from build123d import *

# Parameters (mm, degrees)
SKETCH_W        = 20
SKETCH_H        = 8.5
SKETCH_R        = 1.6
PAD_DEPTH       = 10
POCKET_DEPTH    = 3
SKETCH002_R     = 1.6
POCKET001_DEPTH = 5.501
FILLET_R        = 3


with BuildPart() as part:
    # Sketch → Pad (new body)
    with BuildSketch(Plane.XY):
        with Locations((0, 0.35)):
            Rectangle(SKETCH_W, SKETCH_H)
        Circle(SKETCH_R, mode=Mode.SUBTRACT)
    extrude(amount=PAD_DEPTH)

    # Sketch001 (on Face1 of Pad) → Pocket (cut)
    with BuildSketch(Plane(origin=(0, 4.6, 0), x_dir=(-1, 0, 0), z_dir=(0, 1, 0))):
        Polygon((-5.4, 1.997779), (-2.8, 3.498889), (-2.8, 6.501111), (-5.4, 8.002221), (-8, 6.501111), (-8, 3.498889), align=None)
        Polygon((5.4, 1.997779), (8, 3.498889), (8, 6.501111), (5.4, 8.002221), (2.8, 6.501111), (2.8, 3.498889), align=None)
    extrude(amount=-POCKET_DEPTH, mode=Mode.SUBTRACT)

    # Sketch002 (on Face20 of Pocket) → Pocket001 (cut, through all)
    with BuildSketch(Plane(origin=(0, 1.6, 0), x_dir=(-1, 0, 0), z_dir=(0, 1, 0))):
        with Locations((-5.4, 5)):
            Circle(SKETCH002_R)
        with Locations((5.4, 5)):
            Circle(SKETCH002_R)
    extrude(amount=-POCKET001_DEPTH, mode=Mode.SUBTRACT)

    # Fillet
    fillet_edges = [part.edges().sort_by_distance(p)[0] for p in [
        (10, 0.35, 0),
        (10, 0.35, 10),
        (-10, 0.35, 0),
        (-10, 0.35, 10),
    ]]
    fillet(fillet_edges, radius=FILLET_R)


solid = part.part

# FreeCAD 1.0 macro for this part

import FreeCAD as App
import Part
import Sketcher

V = App.Vector
Q = App.Units.Quantity


def edges_at(feature, points):
    """Names of the edges that pass closest to the given points."""
    edges = feature.Shape.Edges
    near = lambda p: min(range(len(edges)), key=lambda i: edges[i].distToShape(Part.Vertex(*p))[0])
    return sorted({f"Edge{near(p) + 1}" for p in points})


def add_polygon(sketch, points):
    """Adds a closed chain of lines whose ends are joined by coincident constraints."""
    first, n = sketch.GeometryCount, len(points)
    for a, b in zip(points, points[1:] + points[:1]):
        sketch.addGeometry(Part.LineSegment(App.Vector(*a, 0), App.Vector(*b, 0)), False)
    for i in range(n):
        sketch.addConstraint(Sketcher.Constraint("Coincident", first + i, 2, first + (i + 1) % n, 1))

doc = App.newDocument("Part")
body = doc.addObject("PartDesign::Body", "Body")

# Sketch on XY plane
sketch1 = body.newObject("Sketcher::SketchObject", "Sketch")
sketch1.AttachmentSupport = (doc.getObject("XY_Plane"), [""])
sketch1.MapMode = "FlatFace"
add_polygon(sketch1, [(-10, 4.6), (-10, -3.9), (10, -3.9), (10, 4.6)])  # lines 0-3
sketch1.addGeometry(Part.Circle(V(0, 0, 0), V(0, 0, 1), 1.6), False)  # 4
sketch1.addConstraint([
    Sketcher.Constraint("Vertical", 0),
    Sketcher.Constraint("Horizontal", 1),
    Sketcher.Constraint("Vertical", 2),
    Sketcher.Constraint("Horizontal", 3),
    Sketcher.Constraint("Coincident", 4, 3, -1, 1),
    Sketcher.Constraint("Diameter", 4, Q("3.2 mm")),
    Sketcher.Constraint("DistanceX", 1, 1, 1, 2, Q("20 mm")),
    Sketcher.Constraint("DistanceY", 0, 2, 0, 1, Q("8.5 mm")),
    Sketcher.Constraint("DistanceX", 0, 2, -1, 1, Q("10 mm")),
    Sketcher.Constraint("DistanceY", 0, 2, -1, 1, Q("3.9 mm")),
])
pad1 = body.newObject("PartDesign::Pad", "Pad")
pad1.Profile = sketch1
pad1.Length = 10

# Sketch on XZ plane
sketch2 = body.newObject("Sketcher::SketchObject", "Sketch001")
sketch2.AttachmentSupport = (doc.getObject("XZ_Plane"), [""])
sketch2.MapMode = "FlatFace"
sketch2.AttachmentOffset = App.Placement(V(0, 0, -4.6), App.Rotation())
add_polygon(sketch2, [(5.4, 2), (2.8, 3.5), (2.8, 6.5), (5.4, 8), (8, 6.5), (8, 3.5)])  # lines 0-5
add_polygon(sketch2, [(-5.4, 2), (-8, 3.5), (-8, 6.5), (-5.4, 8), (-2.8, 6.5), (-2.8, 3.5)])  # lines 6-11
sketch2.addConstraint([
    Sketcher.Constraint("Vertical", 1),
    Sketcher.Constraint("Vertical", 4),
    Sketcher.Constraint("Vertical", 7),
    Sketcher.Constraint("Vertical", 10),
    Sketcher.Constraint("Symmetric", 4, 2, 6, 2, -2),
    Sketcher.Constraint("Symmetric", 2, 2, 8, 2, -2),
    Sketcher.Constraint("Symmetric", 1, 2, 9, 2, -2),
    Sketcher.Constraint("Symmetric", 5, 2, 11, 2, -2),
    Sketcher.Constraint("Parallel", 0, 3),
    Sketcher.Constraint("Parallel", 2, 5),
    Sketcher.Constraint("Parallel", 3, 6),
    Sketcher.Constraint("Parallel", 5, 8),
    Sketcher.Constraint("Parallel", 8, 11),
    Sketcher.Constraint("Horizontal", 1, 2, 3, 2),
    Sketcher.Constraint("Horizontal", 0, 2, 4, 2),
    Sketcher.Constraint("Angle", 0, Q("150.000012 deg")),
    Sketcher.Constraint("DistanceX", -1, 1, 3, 2, Q("8 mm")),
    Sketcher.Constraint("DistanceX", -1, 1, 0, 2, Q("2.8 mm")),
    Sketcher.Constraint("DistanceY", 1, 1, 1, 2, Q("3.002222 mm")),
    Sketcher.Constraint("DistanceY", -1, 1, 0, 2, Q("3.498889 mm")),
])
pocket1 = body.newObject("PartDesign::Pocket", "Pocket")
pocket1.Profile = sketch2
pocket1.Length = 3
pocket1.Reversed = True

# Sketch on XZ plane
sketch3 = body.newObject("Sketcher::SketchObject", "Sketch002")
sketch3.AttachmentSupport = (doc.getObject("XZ_Plane"), [""])
sketch3.MapMode = "FlatFace"
sketch3.AttachmentOffset = App.Placement(V(0, 0, -1.6), App.Rotation())
sketch3.addGeometry([
    Part.Circle(V(5.4, 5, 0), V(0, 0, 1), 1.6),
    Part.Circle(V(-5.4, 5, 0), V(0, 0, 1), 1.6),
], False)
sketch3.addConstraint([
    Sketcher.Constraint("Equal", 0, 1),
    Sketcher.Constraint("Symmetric", 0, 3, 1, 3, -2),
    Sketcher.Constraint("Diameter", 0, Q("3.2 mm")),
    Sketcher.Constraint("DistanceY", -1, 1, 0, 3, Q("5 mm")),
    Sketcher.Constraint("DistanceX", -1, 1, 0, 3, Q("5.4 mm")),
])
pocket2 = body.newObject("PartDesign::Pocket", "Pocket001")
pocket2.Profile = sketch3
pocket2.Type = "ThroughAll"
pocket2.Reversed = True
doc.recompute()

fillet = body.newObject("PartDesign::Fillet", "Fillet")
fillet.Base = (pocket2, edges_at(pocket2, [
    (10, 0.35, 0),
    (10, 0.35, 10),
    (-10, 0.35, 0),
    (-10, 0.35, 10),
]))
fillet.Radius = 3

doc.recompute()
